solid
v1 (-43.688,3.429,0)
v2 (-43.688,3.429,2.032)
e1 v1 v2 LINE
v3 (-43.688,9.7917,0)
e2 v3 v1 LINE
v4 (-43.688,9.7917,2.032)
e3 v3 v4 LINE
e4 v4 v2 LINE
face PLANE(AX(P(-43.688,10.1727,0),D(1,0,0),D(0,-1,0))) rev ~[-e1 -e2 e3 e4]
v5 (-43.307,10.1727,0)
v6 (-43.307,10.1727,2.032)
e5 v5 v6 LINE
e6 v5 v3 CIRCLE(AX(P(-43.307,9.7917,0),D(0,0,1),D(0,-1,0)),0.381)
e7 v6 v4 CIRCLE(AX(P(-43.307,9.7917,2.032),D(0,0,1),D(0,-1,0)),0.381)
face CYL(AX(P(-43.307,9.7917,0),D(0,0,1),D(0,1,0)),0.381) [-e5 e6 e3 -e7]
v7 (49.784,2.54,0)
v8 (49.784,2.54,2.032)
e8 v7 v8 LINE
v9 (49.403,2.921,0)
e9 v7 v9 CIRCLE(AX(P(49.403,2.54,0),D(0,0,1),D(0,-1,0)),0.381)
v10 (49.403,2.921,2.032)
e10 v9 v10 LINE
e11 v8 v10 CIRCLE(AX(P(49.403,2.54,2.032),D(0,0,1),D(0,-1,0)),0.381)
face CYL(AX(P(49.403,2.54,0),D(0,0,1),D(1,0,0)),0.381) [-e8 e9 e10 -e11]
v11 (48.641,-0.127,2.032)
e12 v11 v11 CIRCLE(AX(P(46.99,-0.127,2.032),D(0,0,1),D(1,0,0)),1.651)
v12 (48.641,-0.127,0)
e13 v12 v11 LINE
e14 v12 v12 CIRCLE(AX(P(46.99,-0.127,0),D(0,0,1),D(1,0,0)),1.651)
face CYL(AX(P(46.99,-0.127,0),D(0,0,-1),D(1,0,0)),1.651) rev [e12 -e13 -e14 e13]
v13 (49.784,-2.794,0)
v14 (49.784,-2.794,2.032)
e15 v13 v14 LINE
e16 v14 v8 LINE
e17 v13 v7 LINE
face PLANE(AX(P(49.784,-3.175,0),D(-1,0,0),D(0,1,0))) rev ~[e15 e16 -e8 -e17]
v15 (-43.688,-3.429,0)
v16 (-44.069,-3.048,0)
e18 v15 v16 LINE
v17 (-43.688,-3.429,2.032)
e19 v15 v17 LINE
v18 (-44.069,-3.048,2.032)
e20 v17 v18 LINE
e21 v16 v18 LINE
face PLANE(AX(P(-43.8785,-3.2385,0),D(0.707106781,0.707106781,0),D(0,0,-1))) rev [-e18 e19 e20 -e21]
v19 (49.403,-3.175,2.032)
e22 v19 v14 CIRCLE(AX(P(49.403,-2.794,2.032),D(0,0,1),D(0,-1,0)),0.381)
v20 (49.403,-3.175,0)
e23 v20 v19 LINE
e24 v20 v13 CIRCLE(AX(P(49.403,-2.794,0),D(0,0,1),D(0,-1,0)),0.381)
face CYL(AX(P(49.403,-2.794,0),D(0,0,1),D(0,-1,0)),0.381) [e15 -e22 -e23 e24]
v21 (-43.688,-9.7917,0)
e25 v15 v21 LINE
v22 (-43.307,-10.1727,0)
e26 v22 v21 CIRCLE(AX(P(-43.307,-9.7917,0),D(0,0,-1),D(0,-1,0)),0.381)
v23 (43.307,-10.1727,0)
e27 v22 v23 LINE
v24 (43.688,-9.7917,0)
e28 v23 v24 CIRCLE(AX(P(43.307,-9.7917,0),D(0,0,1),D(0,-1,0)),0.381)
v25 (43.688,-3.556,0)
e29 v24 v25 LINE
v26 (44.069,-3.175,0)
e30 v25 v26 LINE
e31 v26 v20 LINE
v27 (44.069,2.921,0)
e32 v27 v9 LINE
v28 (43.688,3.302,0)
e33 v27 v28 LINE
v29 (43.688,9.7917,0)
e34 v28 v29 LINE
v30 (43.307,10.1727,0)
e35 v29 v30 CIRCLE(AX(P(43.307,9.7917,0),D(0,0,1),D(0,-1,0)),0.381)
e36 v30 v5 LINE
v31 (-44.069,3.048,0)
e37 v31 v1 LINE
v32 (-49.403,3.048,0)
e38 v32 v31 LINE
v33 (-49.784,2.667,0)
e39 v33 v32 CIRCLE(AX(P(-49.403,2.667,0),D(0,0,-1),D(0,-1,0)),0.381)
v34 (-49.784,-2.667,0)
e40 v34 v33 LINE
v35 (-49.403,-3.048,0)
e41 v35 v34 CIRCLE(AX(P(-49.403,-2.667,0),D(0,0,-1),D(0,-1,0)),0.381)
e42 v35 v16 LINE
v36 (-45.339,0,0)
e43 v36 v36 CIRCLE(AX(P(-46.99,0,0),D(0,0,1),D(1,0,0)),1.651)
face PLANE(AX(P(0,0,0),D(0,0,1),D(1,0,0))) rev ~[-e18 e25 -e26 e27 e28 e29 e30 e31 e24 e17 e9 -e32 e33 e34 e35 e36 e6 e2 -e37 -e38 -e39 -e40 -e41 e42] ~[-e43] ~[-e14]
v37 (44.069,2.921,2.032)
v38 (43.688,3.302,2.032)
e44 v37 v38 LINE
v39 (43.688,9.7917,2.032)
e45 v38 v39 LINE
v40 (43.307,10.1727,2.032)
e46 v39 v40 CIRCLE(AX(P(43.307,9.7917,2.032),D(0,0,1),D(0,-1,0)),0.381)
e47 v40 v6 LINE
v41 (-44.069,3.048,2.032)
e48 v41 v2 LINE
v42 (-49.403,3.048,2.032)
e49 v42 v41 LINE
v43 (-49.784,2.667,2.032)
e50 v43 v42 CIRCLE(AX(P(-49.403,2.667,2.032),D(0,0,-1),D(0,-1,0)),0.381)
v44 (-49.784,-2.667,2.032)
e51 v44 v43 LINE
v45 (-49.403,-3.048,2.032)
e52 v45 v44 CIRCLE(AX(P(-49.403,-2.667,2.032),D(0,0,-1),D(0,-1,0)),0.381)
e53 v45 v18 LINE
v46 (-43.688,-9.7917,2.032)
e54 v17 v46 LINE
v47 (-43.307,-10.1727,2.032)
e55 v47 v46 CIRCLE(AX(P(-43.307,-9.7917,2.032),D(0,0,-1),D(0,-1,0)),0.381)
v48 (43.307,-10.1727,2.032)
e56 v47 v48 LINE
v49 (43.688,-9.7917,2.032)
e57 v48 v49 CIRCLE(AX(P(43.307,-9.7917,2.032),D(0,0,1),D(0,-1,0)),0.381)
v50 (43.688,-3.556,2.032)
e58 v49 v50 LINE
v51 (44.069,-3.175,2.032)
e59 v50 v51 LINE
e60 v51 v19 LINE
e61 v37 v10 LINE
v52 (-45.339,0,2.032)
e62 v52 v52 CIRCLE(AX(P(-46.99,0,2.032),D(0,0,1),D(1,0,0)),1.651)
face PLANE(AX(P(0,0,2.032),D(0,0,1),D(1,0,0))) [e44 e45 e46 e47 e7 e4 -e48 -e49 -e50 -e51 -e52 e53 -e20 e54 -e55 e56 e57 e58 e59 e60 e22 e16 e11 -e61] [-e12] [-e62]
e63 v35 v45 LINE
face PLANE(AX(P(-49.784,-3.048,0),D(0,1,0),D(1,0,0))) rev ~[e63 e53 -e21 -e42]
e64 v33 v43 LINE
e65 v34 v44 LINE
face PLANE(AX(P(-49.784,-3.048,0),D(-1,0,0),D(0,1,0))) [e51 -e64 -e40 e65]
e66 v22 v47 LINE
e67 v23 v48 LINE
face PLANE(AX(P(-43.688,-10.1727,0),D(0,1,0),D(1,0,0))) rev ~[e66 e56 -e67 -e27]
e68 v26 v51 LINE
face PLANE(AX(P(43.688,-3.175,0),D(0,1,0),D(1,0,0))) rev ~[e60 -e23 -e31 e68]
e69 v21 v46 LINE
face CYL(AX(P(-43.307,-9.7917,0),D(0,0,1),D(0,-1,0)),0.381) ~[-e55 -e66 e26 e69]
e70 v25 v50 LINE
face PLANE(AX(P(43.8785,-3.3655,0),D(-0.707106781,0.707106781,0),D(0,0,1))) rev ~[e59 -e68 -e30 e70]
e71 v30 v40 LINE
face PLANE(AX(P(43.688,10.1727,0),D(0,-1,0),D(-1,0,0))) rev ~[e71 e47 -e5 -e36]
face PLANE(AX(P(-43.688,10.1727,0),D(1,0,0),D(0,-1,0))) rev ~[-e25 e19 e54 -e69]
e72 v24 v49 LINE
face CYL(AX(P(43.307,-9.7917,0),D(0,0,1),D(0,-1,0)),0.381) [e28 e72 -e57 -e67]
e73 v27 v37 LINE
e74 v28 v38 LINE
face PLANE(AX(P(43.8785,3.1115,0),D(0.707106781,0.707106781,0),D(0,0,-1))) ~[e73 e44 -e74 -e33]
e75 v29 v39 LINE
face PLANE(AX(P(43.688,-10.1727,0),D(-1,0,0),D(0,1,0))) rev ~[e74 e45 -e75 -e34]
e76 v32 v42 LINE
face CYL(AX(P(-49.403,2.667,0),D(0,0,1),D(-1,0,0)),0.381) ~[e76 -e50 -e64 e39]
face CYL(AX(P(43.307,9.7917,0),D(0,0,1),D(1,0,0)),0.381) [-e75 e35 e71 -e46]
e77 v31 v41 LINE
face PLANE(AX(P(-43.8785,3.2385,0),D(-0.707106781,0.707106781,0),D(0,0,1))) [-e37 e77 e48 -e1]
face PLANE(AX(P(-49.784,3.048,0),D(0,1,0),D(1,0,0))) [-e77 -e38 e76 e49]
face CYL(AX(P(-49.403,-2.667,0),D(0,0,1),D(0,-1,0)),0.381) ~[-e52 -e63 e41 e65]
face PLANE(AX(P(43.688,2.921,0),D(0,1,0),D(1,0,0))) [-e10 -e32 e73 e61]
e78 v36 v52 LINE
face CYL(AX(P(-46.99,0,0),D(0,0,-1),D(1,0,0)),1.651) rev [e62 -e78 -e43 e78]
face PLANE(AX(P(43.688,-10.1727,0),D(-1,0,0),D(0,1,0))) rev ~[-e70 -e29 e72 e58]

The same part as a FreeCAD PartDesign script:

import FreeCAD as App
import Part
import Sketcher

V = App.Vector
Q = App.Units.Quantity


def edges_at(feature, points):
    """Names of the edges that pass closest to the given points."""
    edges = feature.Shape.Edges
    near = lambda p: min(range(len(edges)), key=lambda i: edges[i].distToShape(Part.Vertex(*p))[0])
    return sorted({f"Edge{near(p) + 1}" for p in points})

doc = App.newDocument("Part")
params = doc.addObject("Spreadsheet::Sheet", "Params")
for row, (alias, value) in enumerate([
    ("sketch1_width", "3.44 in"),
    ("sketch1_height", "0.801 in"),
    ("pad1_length", "0.08 in"),
    ("sketch2_diameter", "0.13 in"),
    ("sketch2_width", "0.24 in"),
    ("pad2_length", "0.08 in"),
    ("sketch3_diameter", "0.13 in"),
    ("sketch3_width", "0.24 in"),
    ("pad3_length", "0.08 in"),
    ("fillet_radius", "0.015 in"),
    ("chamfer_size", "0.015 in"),
], start=1):
    params.set(f"A{row}", alias)
    params.set(f"B{row}", "=" + value)
    params.setAlias(f"B{row}", alias)

body = doc.addObject("PartDesign::Body", "Body")

# Sketch on XY plane
sketch1 = body.newObject("Sketcher::SketchObject", "Sketch")
sketch1.AttachmentSupport = (doc.getObject("XY_Plane"), [""])
sketch1.MapMode = "FlatFace"
sketch1.addGeometry([
    Part.LineSegment(V(-43.688, -10.1727, 0), V(43.688, -10.1727, 0)),
    Part.LineSegment(V(43.688, -10.1727, 0), V(43.688, 10.1727, 0)),
    Part.LineSegment(V(43.688, 10.1727, 0), V(-43.688, 10.1727, 0)),
    Part.LineSegment(V(-43.688, 10.1727, 0), V(-43.688, -10.1727, 0)),
], False)
sketch1.addConstraint([
    Sketcher.Constraint("Coincident", 0, 2, 1, 1),
    Sketcher.Constraint("Coincident", 1, 2, 2, 1),
    Sketcher.Constraint("Coincident", 2, 2, 3, 1),
    Sketcher.Constraint("Coincident", 3, 2, 0, 1),
    Sketcher.Constraint("Horizontal", 0),
    Sketcher.Constraint("Vertical", 1),
    Sketcher.Constraint("Horizontal", 2),
    Sketcher.Constraint("Vertical", 3),
    Sketcher.Constraint("Symmetric", 0, 2, 2, 2, -1, 1),
    Sketcher.Constraint("DistanceX", 0, 1, 0, 2, Q("3.44 in")),
    Sketcher.Constraint("DistanceY", 1, 1, 1, 2, Q("0.801 in")),
])
sketch1.setExpression("Constraints[9]", "Params.sketch1_width")
sketch1.setExpression("Constraints[10]", "Params.sketch1_height")
pad1 = body.newObject("PartDesign::Pad", "Pad")
pad1.Profile = sketch1
pad1.setExpression("Length", "Params.pad1_length")

# Sketch on XY plane
sketch2 = body.newObject("Sketcher::SketchObject", "Sketch001")
sketch2.AttachmentSupport = (doc.getObject("XY_Plane"), [""])
sketch2.MapMode = "FlatFace"
sketch2.addGeometry([
    Part.LineSegment(V(43.688, 2.921, 0), V(43.688, -3.175, 0)),  # 0
    Part.LineSegment(V(43.688, -3.175, 0), V(49.784, -3.175, 0)),  # 1
    Part.LineSegment(V(49.784, -3.175, 0), V(49.784, 2.921, 0)),  # 2
    Part.LineSegment(V(49.784, 2.921, 0), V(43.688, 2.921, 0)),  # 3
    Part.Circle(V(46.99, -0.127, 0), V(0, 0, 1), 1.651),  # 4
], False)
sketch2.addConstraint([
    Sketcher.Constraint("Coincident", 0, 2, 1, 1),
    Sketcher.Constraint("Coincident", 1, 2, 2, 1),
    Sketcher.Constraint("Coincident", 2, 2, 3, 1),
    Sketcher.Constraint("Coincident", 3, 2, 0, 1),
    Sketcher.Constraint("Vertical", 0),
    Sketcher.Constraint("Horizontal", 1),
    Sketcher.Constraint("Vertical", 2),
    Sketcher.Constraint("Horizontal", 3),
    Sketcher.Constraint("Equal", 3, 0),
    Sketcher.Constraint("Diameter", 4, Q("0.13 in")),
    Sketcher.Constraint("DistanceX", 1, 1, 1, 2, Q("0.24 in")),
    Sketcher.Constraint("DistanceX", -1, 1, 4, 3, Q("1.85 in")),
    Sketcher.Constraint("DistanceX", -1, 1, 0, 2, Q("1.72 in")),
    Sketcher.Constraint("DistanceY", 0, 2, 4, 3, Q("0.12 in")),
    Sketcher.Constraint("DistanceY", 4, 3, -1, 1, Q("0.005 in")),
])
sketch2.setExpression("Constraints[9]", "Params.sketch2_diameter")
sketch2.setExpression("Constraints[10]", "Params.sketch2_width")
pad2 = body.newObject("PartDesign::Pad", "Pad001")
pad2.Profile = sketch2
pad2.setExpression("Length", "Params.pad2_length")

# Sketch on XY plane
sketch3 = body.newObject("Sketcher::SketchObject", "Sketch002")
sketch3.AttachmentSupport = (doc.getObject("XY_Plane"), [""])
sketch3.MapMode = "FlatFace"
sketch3.addGeometry([
    Part.LineSegment(V(-49.784, 3.048, 0), V(-49.784, -3.048, 0)),  # 0
    Part.LineSegment(V(-49.784, -3.048, 0), V(-43.688, -3.048, 0)),  # 1
    Part.LineSegment(V(-43.688, -3.048, 0), V(-43.688, 3.048, 0)),  # 2
    Part.LineSegment(V(-43.688, 3.048, 0), V(-49.784, 3.048, 0)),  # 3
    Part.Circle(V(-46.99, 0, 0), V(0, 0, 1), 1.651),  # 4
], False)
sketch3.addConstraint([
    Sketcher.Constraint("Coincident", 0, 2, 1, 1),
    Sketcher.Constraint("Coincident", 1, 2, 2, 1),
    Sketcher.Constraint("Coincident", 2, 2, 3, 1),
    Sketcher.Constraint("Coincident", 3, 2, 0, 1),
    Sketcher.Constraint("Vertical", 0),
    Sketcher.Constraint("Horizontal", 1),
    Sketcher.Constraint("Vertical", 2),
    Sketcher.Constraint("Horizontal", 3),
    Sketcher.Constraint("PointOnObject", 4, 3, -1),
    Sketcher.Constraint("Equal", 3, 0),
    Sketcher.Constraint("Diameter", 4, Q("0.13 in")),
    Sketcher.Constraint("DistanceX", 1, 1, 1, 2, Q("0.24 in")),
    Sketcher.Constraint("DistanceX", 4, 3, -1, 1, Q("1.85 in")),
    Sketcher.Constraint("DistanceX", 0, 2, -1, 1, Q("1.96 in")),
    Sketcher.Constraint("DistanceY", 0, 2, -1, 1, Q("0.12 in")),
])
sketch3.setExpression("Constraints[10]", "Params.sketch3_diameter")
sketch3.setExpression("Constraints[11]", "Params.sketch3_width")
pad3 = body.newObject("PartDesign::Pad", "Pad002")
pad3.Profile = sketch3
pad3.setExpression("Length", "Params.pad3_length")
doc.recompute()

fillet = body.newObject("PartDesign::Fillet", "Fillet")
fillet.Base = (pad3, edges_at(pad3, [
    (43.688, -10.173, 1.016),
    (43.688, 10.173, 1.016),
    (-43.688, -10.173, 1.016),
    (-43.688, 10.173, 1.016),
    (-49.784, 3.048, 1.016),
    (-49.784, -3.048, 1.016),
    (49.784, -3.175, 1.016),
    (49.784, 2.921, 1.016),
]))
fillet.setExpression("Radius", "Params.fillet_radius")
doc.recompute()

chamfer = body.newObject("PartDesign::Chamfer", "Chamfer")
chamfer.Base = (fillet, edges_at(fillet, [
    (43.688, 2.921, 1.016),
    (43.688, -3.175, 1.016),
    (-43.688, -3.048, 1.016),
    (-43.688, 3.048, 1.016),
]))
chamfer.setExpression("Size", "Params.chamfer_size")

doc.recompute()
